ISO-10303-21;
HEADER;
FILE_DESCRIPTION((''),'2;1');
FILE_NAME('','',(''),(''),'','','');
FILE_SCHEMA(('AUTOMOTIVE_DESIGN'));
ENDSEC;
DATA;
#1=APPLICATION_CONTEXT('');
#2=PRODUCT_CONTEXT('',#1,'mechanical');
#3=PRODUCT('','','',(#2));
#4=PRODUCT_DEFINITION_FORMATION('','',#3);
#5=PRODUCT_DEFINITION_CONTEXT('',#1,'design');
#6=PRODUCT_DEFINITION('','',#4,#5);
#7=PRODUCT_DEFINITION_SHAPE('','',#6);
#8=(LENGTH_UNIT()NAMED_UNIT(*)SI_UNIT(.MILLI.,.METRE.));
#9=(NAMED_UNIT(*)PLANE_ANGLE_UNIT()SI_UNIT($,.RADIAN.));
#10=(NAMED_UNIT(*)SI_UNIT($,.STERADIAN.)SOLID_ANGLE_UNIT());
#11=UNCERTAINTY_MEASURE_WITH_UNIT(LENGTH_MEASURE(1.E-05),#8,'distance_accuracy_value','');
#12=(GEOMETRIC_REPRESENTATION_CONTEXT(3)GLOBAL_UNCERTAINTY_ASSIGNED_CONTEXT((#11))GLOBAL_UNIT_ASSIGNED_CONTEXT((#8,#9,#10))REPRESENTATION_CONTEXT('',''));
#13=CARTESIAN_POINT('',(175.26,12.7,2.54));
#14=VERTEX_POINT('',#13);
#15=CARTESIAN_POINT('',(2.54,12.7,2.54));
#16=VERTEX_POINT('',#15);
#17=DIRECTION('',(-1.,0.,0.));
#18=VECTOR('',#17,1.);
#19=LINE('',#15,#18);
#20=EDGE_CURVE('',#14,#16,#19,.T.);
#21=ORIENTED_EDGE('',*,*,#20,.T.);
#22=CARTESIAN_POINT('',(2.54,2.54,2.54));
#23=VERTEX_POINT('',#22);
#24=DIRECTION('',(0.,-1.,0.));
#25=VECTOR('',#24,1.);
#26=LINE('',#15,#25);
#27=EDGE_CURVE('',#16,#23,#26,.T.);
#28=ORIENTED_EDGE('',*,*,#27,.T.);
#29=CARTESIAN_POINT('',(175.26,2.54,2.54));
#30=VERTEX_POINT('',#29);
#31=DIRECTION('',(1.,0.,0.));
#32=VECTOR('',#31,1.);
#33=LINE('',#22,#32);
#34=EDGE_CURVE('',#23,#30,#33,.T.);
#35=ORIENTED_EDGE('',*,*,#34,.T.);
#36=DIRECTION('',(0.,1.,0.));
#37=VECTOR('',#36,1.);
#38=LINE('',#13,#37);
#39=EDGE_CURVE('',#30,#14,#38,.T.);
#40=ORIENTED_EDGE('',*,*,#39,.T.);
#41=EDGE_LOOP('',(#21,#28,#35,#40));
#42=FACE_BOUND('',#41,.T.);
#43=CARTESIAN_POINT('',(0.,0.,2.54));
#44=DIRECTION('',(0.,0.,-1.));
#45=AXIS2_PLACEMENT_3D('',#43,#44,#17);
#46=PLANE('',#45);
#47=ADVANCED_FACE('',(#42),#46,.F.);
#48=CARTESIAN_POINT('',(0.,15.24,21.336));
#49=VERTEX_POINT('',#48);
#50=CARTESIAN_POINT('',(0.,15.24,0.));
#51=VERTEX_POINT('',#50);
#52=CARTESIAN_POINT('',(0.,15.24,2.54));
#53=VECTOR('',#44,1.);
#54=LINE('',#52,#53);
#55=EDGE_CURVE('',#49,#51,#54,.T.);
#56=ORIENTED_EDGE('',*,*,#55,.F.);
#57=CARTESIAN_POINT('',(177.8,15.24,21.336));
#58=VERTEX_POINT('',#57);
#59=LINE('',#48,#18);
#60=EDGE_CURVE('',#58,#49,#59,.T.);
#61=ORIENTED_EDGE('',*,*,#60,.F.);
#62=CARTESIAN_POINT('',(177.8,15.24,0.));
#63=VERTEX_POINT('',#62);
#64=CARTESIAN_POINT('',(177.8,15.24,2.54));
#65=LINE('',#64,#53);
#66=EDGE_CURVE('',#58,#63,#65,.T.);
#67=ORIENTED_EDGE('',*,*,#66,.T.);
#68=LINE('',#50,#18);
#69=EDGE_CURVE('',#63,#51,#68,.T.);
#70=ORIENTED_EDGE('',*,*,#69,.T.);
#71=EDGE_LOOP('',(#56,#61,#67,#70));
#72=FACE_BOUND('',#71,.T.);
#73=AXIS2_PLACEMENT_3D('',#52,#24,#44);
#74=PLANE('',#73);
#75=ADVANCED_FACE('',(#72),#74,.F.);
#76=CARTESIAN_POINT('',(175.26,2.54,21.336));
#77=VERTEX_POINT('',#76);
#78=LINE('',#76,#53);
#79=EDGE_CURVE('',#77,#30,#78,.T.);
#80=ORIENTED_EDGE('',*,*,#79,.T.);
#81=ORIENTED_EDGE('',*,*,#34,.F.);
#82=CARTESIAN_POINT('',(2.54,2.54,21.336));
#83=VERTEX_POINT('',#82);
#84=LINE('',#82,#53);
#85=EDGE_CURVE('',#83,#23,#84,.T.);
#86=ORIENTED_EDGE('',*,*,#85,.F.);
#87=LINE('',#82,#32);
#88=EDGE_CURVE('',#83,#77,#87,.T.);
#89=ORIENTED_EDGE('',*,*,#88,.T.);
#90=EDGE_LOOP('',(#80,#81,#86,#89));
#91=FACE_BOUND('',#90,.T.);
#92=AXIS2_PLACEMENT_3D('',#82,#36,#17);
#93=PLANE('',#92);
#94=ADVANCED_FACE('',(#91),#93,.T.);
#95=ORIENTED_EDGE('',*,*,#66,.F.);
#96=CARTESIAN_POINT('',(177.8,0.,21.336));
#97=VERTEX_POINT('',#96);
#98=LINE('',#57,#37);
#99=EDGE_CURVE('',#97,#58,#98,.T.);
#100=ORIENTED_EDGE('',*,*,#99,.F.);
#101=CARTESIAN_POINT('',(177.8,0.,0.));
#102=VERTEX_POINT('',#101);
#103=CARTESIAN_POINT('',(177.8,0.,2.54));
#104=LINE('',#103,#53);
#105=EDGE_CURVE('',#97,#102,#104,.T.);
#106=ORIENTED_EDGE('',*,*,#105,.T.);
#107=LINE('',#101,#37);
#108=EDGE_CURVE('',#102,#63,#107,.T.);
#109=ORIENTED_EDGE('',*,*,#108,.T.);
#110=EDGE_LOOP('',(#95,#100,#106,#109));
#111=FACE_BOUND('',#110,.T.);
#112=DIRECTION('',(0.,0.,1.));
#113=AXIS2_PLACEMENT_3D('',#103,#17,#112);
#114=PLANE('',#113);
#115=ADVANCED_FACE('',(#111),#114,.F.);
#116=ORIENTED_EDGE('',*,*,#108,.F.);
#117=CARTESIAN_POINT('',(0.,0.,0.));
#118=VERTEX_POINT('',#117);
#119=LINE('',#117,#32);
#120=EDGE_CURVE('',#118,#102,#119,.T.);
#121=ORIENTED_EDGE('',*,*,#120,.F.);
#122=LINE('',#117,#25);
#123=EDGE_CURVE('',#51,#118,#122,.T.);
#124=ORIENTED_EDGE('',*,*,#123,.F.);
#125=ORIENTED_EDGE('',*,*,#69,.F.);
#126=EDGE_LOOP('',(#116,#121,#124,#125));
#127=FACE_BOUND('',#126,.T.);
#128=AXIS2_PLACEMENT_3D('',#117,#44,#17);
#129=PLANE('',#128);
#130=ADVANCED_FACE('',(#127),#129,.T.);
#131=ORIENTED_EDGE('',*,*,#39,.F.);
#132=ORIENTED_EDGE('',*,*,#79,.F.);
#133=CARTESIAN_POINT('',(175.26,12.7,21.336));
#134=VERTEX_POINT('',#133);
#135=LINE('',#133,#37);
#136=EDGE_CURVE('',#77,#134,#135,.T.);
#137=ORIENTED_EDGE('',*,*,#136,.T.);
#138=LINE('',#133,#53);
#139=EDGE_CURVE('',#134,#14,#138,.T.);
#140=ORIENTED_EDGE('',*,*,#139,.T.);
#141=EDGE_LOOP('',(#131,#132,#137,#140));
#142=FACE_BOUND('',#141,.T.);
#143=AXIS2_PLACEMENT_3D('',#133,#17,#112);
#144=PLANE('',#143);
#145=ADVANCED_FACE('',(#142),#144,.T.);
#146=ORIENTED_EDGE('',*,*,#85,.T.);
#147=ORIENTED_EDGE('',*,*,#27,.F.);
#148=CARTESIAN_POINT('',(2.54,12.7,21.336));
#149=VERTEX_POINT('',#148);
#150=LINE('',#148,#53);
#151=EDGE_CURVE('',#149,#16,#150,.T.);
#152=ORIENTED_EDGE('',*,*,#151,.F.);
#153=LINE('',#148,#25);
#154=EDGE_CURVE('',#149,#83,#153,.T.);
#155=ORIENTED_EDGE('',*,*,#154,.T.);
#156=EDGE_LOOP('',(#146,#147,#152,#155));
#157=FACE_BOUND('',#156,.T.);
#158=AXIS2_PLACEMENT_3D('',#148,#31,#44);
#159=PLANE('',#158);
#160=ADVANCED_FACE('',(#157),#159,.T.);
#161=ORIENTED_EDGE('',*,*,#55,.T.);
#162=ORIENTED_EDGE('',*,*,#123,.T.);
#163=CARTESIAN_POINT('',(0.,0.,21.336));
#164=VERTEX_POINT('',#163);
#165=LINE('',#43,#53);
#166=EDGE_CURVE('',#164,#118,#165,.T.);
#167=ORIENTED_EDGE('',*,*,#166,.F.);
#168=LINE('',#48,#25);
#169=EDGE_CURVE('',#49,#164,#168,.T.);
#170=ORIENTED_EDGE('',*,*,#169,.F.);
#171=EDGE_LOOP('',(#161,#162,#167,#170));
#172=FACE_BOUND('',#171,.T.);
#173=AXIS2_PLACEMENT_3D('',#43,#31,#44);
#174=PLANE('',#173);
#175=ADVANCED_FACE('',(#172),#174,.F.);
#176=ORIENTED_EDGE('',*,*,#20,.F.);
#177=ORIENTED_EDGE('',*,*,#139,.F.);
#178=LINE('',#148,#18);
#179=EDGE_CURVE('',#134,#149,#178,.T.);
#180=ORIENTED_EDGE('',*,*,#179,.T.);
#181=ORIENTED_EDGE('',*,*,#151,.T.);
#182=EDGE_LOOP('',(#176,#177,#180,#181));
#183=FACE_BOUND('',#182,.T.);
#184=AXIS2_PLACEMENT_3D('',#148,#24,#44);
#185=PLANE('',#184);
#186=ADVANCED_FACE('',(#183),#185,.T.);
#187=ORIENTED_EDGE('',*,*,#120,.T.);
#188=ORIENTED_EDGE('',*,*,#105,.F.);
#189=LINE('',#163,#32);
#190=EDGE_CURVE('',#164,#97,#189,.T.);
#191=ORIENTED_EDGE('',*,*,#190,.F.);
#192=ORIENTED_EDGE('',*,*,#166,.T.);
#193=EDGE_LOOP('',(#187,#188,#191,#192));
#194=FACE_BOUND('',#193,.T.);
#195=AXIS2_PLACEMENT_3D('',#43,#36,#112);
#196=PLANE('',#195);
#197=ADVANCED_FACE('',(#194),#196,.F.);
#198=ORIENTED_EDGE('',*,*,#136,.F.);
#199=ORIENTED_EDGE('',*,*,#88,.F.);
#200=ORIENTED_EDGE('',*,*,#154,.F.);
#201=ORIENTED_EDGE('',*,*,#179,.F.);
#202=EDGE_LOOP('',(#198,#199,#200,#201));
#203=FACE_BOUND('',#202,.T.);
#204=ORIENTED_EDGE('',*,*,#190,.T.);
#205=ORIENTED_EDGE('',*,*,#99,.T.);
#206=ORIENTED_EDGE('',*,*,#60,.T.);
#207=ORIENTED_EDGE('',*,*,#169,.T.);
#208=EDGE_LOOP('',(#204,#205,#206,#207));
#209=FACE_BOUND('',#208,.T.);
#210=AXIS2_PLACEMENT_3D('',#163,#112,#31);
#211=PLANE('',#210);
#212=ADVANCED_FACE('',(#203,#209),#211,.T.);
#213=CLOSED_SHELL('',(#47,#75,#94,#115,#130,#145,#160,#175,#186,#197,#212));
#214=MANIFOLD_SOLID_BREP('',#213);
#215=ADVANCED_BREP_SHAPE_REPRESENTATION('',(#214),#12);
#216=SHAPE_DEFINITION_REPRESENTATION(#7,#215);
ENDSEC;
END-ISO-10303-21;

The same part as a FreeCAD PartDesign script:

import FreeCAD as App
import Part
import Sketcher

V = App.Vector
Q = App.Units.Quantity


def add_polygon(sketch, points):
    """Adds a closed chain of lines whose ends are joined by coincident constraints."""
    first, n = sketch.GeometryCount, len(points)
    for a, b in zip(points, points[1:] + points[:1]):
        sketch.addGeometry(Part.LineSegment(App.Vector(*a, 0), App.Vector(*b, 0)), False)
    for i in range(n):
        sketch.addConstraint(Sketcher.Constraint("Coincident", first + i, 2, first + (i + 1) % n, 1))

doc = App.newDocument("Part")
params = doc.addObject("Spreadsheet::Sheet", "Params")
for row, (alias, value) in enumerate([
    ("sketch1_width", "7 in"),
    ("sketch1_height", "0.6 in"),
    ("pad1_length", "0.1 in"),
    ("sketch2_width", "7 in"),
    ("sketch2_width2", "6.8 in"),
    ("sketch2_height", "0.6 in"),
    ("sketch2_height2", "0.4 in"),
    ("pad2_length", "0.74 in"),
], start=1):
    params.set(f"A{row}", alias)
    params.set(f"B{row}", "=" + value)
    params.setAlias(f"B{row}", alias)

body = doc.addObject("PartDesign::Body", "Body")

sketch1 = body.newObject("Sketcher::SketchObject", "Sketch")
sketch1.AttachmentSupport = (doc.getObject("XY_Plane"), [""])
sketch1.MapMode = "FlatFace"
add_polygon(sketch1, [(0, 15), (0, 0), (178, 0), (178, 15)])
sketch1.addConstraint(Sketcher.Constraint("Vertical", 0))
sketch1.addConstraint(Sketcher.Constraint("Horizontal", 1))
sketch1.addConstraint(Sketcher.Constraint("Vertical", 2))
sketch1.addConstraint(Sketcher.Constraint("Horizontal", 3))
sketch1.addConstraint(Sketcher.Constraint("Coincident", 0, 2, -1, 1))
sketch1.addConstraint(Sketcher.Constraint("DistanceX", 1, 1, 1, 2, Q("7 in")))
sketch1.addConstraint(Sketcher.Constraint("DistanceY", 0, 2, 0, 1, Q("0.6 in")))
sketch1.setExpression("Constraints[9]", "Params.sketch1_width")
sketch1.setExpression("Constraints[10]", "Params.sketch1_height")
pad1 = body.newObject("PartDesign::Pad", "Pad")
pad1.Profile = sketch1
pad1.setExpression("Length", "Params.pad1_length")

sketch2 = body.newObject("Sketcher::SketchObject", "Sketch001")
sketch2.AttachmentSupport = (doc.getObject("XY_Plane"), [""])
sketch2.MapMode = "FlatFace"
sketch2.AttachmentOffset = App.Placement(V(0, 0, 0.1 * 25.4), App.Rotation())
add_polygon(sketch2, [(0, 15), (0, 0), (178, 0), (178, 15)])
add_polygon(sketch2, [(175, 3), (3, 3), (3, 13), (175, 13)])
sketch2.addConstraint(Sketcher.Constraint("Vertical", 0))
sketch2.addConstraint(Sketcher.Constraint("Horizontal", 1))
sketch2.addConstraint(Sketcher.Constraint("Vertical", 2))
sketch2.addConstraint(Sketcher.Constraint("Horizontal", 3))
sketch2.addConstraint(Sketcher.Constraint("Horizontal", 4))
sketch2.addConstraint(Sketcher.Constraint("Vertical", 5))
sketch2.addConstraint(Sketcher.Constraint("Horizontal", 6))
sketch2.addConstraint(Sketcher.Constraint("Vertical", 7))
sketch2.addConstraint(Sketcher.Constraint("Coincident", 0, 2, -1, 1))
sketch2.addConstraint(Sketcher.Constraint("DistanceX", 1, 1, 1, 2, Q("7 in")))
sketch2.addConstraint(Sketcher.Constraint("DistanceX", 4, 2, 4, 1, Q("6.8 in")))
sketch2.addConstraint(Sketcher.Constraint("DistanceY", 0, 2, 0, 1, Q("0.6 in")))
sketch2.addConstraint(Sketcher.Constraint("DistanceY", 5, 1, 5, 2, Q("0.4 in")))
sketch2.addConstraint(Sketcher.Constraint("DistanceX", -1, 1, 4, 2, Q("0.1 in")))
sketch2.addConstraint(Sketcher.Constraint("DistanceY", -1, 1, 4, 2, Q("0.1 in")))
sketch2.setExpression("Constraints[17]", "Params.sketch2_width")
sketch2.setExpression("Constraints[18]", "Params.sketch2_width2")
sketch2.setExpression("Constraints[19]", "Params.sketch2_height")
sketch2.setExpression("Constraints[20]", "Params.sketch2_height2")
pad2 = body.newObject("PartDesign::Pad", "Pad001")
pad2.Profile = sketch2
pad2.setExpression("Length", "Params.pad2_length")

doc.recompute()
